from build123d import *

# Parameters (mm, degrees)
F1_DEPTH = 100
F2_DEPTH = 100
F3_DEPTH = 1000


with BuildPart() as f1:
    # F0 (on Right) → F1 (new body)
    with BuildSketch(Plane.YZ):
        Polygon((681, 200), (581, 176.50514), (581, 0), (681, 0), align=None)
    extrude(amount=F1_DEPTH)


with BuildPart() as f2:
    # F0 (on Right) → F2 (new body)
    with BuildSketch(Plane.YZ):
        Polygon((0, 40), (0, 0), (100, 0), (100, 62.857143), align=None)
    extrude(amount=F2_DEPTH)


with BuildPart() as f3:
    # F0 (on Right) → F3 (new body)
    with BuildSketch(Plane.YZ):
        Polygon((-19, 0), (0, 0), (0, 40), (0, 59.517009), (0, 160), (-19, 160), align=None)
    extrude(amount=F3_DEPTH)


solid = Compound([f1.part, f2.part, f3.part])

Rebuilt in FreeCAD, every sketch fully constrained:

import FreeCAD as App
import Part
import Sketcher
from FreeCAD import Vector

doc = App.newDocument("Part")
body = doc.addObject("PartDesign::Body", "Body")

# Sketch on YZ plane
sketch1 = doc.addObject("Sketcher::SketchObject", "Sketch")
body.addObject(sketch1)
sketch1.AttachmentSupport = (doc.YZ_Plane, [""])
sketch1.MapMode = "FlatFace"
sketch1.addGeometry([
    Part.LineSegment(Vector(681, 200, 0), Vector(581, 177, 0)),
    Part.LineSegment(Vector(581, 177, 0), Vector(581, 0, 0)),
    Part.LineSegment(Vector(581, 0, 0), Vector(681, 0, 0)),
    Part.LineSegment(Vector(681, 0, 0), Vector(681, 200, 0)),
], False)
sketch1.addConstraint([
    Sketcher.Constraint("Coincident", 0, 2, 1, 1),
    Sketcher.Constraint("Coincident", 1, 2, 2, 1),
    Sketcher.Constraint("Coincident", 2, 2, 3, 1),
    Sketcher.Constraint("Coincident", 3, 2, 0, 1),
    Sketcher.Constraint("Vertical", 1),
    Sketcher.Constraint("Horizontal", 2),
    Sketcher.Constraint("Vertical", 3),
    Sketcher.Constraint("PointOnObject", 1, 2, -1),
    Sketcher.Constraint("DistanceX", 2, 1, 2, 2, 100.0),
    Sketcher.Constraint("DistanceY", 3, 1, 3, 2, 200.0),
    Sketcher.Constraint("DistanceX", -1, 1, 0, 2, 581.0),
    Sketcher.Constraint("DistanceY", 1, 2, 1, 1, 176.50514),
])
pad1 = doc.addObject("PartDesign::Pad", "Pad")
body.addObject(pad1)
pad1.Profile = sketch1
pad1.Length = 100
body2 = doc.addObject("PartDesign::Body", "Body001")

# Sketch on YZ plane
sketch2 = doc.addObject("Sketcher::SketchObject", "Sketch001")
body2.addObject(sketch2)
sketch2.AttachmentSupport = (doc.getObject("YZ_Plane001"), [""])
sketch2.MapMode = "FlatFace"
sketch2.addGeometry([
    Part.LineSegment(Vector(0, 40, 0), Vector(0, 0, 0)),
    Part.LineSegment(Vector(0, 0, 0), Vector(100, 0, 0)),
    Part.LineSegment(Vector(100, 0, 0), Vector(100, 63, 0)),
    Part.LineSegment(Vector(100, 63, 0), Vector(0, 40, 0)),
], False)
sketch2.addConstraint([
    Sketcher.Constraint("Coincident", 0, 2, 1, 1),
    Sketcher.Constraint("Coincident", 1, 2, 2, 1),
    Sketcher.Constraint("Coincident", 2, 2, 3, 1),
    Sketcher.Constraint("Coincident", 3, 2, 0, 1),
    Sketcher.Constraint("Vertical", 0),
    Sketcher.Constraint("Horizontal", 1),
    Sketcher.Constraint("Vertical", 2),
    Sketcher.Constraint("Coincident", 0, 2, -1, 1),
    Sketcher.Constraint("DistanceX", 1, 1, 1, 2, 100.0),
    Sketcher.Constraint("DistanceY", 0, 2, 0, 1, 40.0),
    Sketcher.Constraint("Distance", 3, 102.578989),
])
pad2 = doc.addObject("PartDesign::Pad", "Pad001")
body2.addObject(pad2)
pad2.Profile = sketch2
pad2.Length = 100
body3 = doc.addObject("PartDesign::Body", "Body002")

# Sketch on YZ plane
sketch3 = doc.addObject("Sketcher::SketchObject", "Sketch002")
body3.addObject(sketch3)
sketch3.AttachmentSupport = (doc.getObject("YZ_Plane002"), [""])
sketch3.MapMode = "FlatFace"
sketch3.addGeometry([
    Part.LineSegment(Vector(-19, 0, 0), Vector(0, 0, 0)),
    Part.LineSegment(Vector(0, 0, 0), Vector(0, 160, 0)),
    Part.LineSegment(Vector(0, 160, 0), Vector(-19, 160, 0)),
    Part.LineSegment(Vector(-19, 160, 0), Vector(-19, 0, 0)),
], False)
sketch3.addConstraint([
    Sketcher.Constraint("Coincident", 0, 2, 1, 1),
    Sketcher.Constraint("Coincident", 1, 2, 2, 1),
    Sketcher.Constraint("Coincident", 2, 2, 3, 1),
    Sketcher.Constraint("Coincident", 3, 2, 0, 1),
    Sketcher.Constraint("Horizontal", 0),
    Sketcher.Constraint("Vertical", 1),
    Sketcher.Constraint("Horizontal", 2),
    Sketcher.Constraint("Vertical", 3),
    Sketcher.Constraint("Coincident", 0, 2, -1, 1),
    Sketcher.Constraint("DistanceX", 0, 1, 0, 2, 19.0),
    Sketcher.Constraint("DistanceY", 1, 1, 1, 2, 160.0),
])
pad3 = doc.addObject("PartDesign::Pad", "Pad002")
body3.addObject(pad3)
pad3.Profile = sketch3
pad3.Length = 1000

doc.recompute()
